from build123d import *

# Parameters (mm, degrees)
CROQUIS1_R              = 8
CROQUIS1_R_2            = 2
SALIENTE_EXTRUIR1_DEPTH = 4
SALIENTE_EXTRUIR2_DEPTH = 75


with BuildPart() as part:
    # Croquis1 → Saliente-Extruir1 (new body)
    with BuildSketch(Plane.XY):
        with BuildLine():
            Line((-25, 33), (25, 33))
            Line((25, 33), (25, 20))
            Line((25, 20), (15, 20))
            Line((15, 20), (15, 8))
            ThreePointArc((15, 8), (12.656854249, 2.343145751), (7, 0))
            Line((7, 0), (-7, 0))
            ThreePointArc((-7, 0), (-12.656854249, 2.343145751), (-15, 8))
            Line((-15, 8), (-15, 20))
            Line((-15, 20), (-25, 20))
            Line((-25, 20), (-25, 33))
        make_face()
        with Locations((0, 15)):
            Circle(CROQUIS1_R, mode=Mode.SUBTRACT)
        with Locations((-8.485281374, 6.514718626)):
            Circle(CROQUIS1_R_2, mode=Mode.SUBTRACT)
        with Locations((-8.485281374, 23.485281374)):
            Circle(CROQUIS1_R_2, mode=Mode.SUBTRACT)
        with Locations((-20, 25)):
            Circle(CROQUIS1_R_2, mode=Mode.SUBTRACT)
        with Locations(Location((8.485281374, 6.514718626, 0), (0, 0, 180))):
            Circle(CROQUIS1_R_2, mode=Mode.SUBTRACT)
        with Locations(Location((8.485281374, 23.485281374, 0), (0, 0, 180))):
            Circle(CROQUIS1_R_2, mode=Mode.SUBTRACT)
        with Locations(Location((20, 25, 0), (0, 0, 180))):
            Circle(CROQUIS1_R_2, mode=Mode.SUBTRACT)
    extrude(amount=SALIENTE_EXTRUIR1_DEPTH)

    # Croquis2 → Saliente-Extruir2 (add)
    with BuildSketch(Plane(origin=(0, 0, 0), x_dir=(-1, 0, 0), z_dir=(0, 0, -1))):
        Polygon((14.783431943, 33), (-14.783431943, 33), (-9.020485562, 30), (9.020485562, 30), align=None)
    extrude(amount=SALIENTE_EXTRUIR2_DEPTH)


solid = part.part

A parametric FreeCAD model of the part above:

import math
import FreeCAD as App
import Part
import Sketcher
from FreeCAD import Vector
Q = App.Units.Quantity

doc = App.newDocument("Part")
body = doc.addObject("PartDesign::Body", "Body")

sketch1 = body.newObject("Sketcher::SketchObject", "Sketch")
sketch1.AttachmentSupport = (doc.getObject("XY_Plane"), [""])
sketch1.MapMode = "FlatFace"
sketch1.addGeometry(Part.LineSegment(Vector(25, 33, 0), Vector(-25, 33, 0)), False)
sketch1.addGeometry(Part.LineSegment(Vector(-25, 33, 0), Vector(-25, 20, 0)), False)
sketch1.addGeometry(Part.LineSegment(Vector(-25, 20, 0), Vector(-15, 20, 0)), False)
sketch1.addGeometry(Part.LineSegment(Vector(-15, 20, 0), Vector(-15, 8, 0)), False)
sketch1.addGeometry(Part.ArcOfCircle(Part.Circle(Vector(-7, 8, 0), Vector(0, 0, 1), 8), math.radians(-180), math.radians(-90)), False)
sketch1.addGeometry(Part.LineSegment(Vector(-7, 0, 0), Vector(7, 0, 0)), False)
sketch1.addGeometry(Part.ArcOfCircle(Part.Circle(Vector(7, 8, 0), Vector(0, 0, 1), 8), math.radians(-90), math.radians(0)), False)
sketch1.addGeometry(Part.LineSegment(Vector(15, 8, 0), Vector(15, 20, 0)), False)
sketch1.addGeometry(Part.LineSegment(Vector(15, 20, 0), Vector(25, 20, 0)), False)
sketch1.addGeometry(Part.LineSegment(Vector(25, 20, 0), Vector(25, 33, 0)), False)
sketch1.addGeometry(Part.Circle(Vector(8.5, 6.5, 0), Vector(0, 0, 1), 2), False)
sketch1.addGeometry(Part.Circle(Vector(-8.5, 6.5, 0), Vector(0, 0, 1), 2), False)
sketch1.addGeometry(Part.Circle(Vector(0, 15, 0), Vector(0, 0, 1), 8), False)
sketch1.addGeometry(Part.Circle(Vector(20, 25, 0), Vector(0, 0, 1), 2), False)
sketch1.addGeometry(Part.Circle(Vector(8.5, 23.5, 0), Vector(0, 0, 1), 2), False)
sketch1.addGeometry(Part.Circle(Vector(-8.5, 23.5, 0), Vector(0, 0, 1), 2), False)
sketch1.addGeometry(Part.Circle(Vector(-20, 25, 0), Vector(0, 0, 1), 2), False)
sketch1.addConstraint(Sketcher.Constraint("Coincident", 0, 2, 1, 1))
sketch1.addConstraint(Sketcher.Constraint("Coincident", 1, 2, 2, 1))
sketch1.addConstraint(Sketcher.Constraint("Coincident", 2, 2, 3, 1))
sketch1.addConstraint(Sketcher.Constraint("Tangent", 3, 2, 4, 1))
sketch1.addConstraint(Sketcher.Constraint("Tangent", 4, 2, 5, 1))
sketch1.addConstraint(Sketcher.Constraint("Tangent", 5, 2, 6, 1))
sketch1.addConstraint(Sketcher.Constraint("Tangent", 6, 2, 7, 1))
sketch1.addConstraint(Sketcher.Constraint("Coincident", 7, 2, 8, 1))
sketch1.addConstraint(Sketcher.Constraint("Coincident", 8, 2, 9, 1))
sketch1.addConstraint(Sketcher.Constraint("Coincident", 9, 2, 0, 1))
sketch1.addConstraint(Sketcher.Constraint("Horizontal", 0))
sketch1.addConstraint(Sketcher.Constraint("Vertical", 1))
sketch1.addConstraint(Sketcher.Constraint("Horizontal", 2))
sketch1.addConstraint(Sketcher.Constraint("Vertical", 3))
sketch1.addConstraint(Sketcher.Constraint("Horizontal", 5))
sketch1.addConstraint(Sketcher.Constraint("Vertical", 7))
sketch1.addConstraint(Sketcher.Constraint("Horizontal", 8))
sketch1.addConstraint(Sketcher.Constraint("Vertical", 9))
sketch1.addConstraint(Sketcher.Constraint("Equal", 4, 6))
sketch1.addConstraint(Sketcher.Constraint("Equal", 10, 11))
sketch1.addConstraint(Sketcher.Constraint("Equal", 6, 12))
sketch1.addConstraint(Sketcher.Constraint("Equal", 11, 13))
sketch1.addConstraint(Sketcher.Constraint("Equal", 13, 14))
sketch1.addConstraint(Sketcher.Constraint("Equal", 14, 15))
sketch1.addConstraint(Sketcher.Constraint("Equal", 15, 16))
sketch1.addConstraint(Sketcher.Constraint("Symmetric", 4, 2, 5, 2, -1, 1))
sketch1.addConstraint(Sketcher.Constraint("Symmetric", 10, 3, 11, 3, -2))
sketch1.addConstraint(Sketcher.Constraint("Symmetric", 14, 3, 15, 3, -2))
sketch1.addConstraint(Sketcher.Constraint("Symmetric", 13, 3, 16, 3, -2))
sketch1.addConstraint(Sketcher.Constraint("Symmetric", 1, 2, 8, 2, -2))
sketch1.addConstraint(Sketcher.Constraint("PointOnObject", 12, 3, -2))
sketch1.addConstraint(Sketcher.Constraint("Vertical", 10, 3, 14, 3))
sketch1.addConstraint(Sketcher.Constraint("Diameter", 10, Q("4 mm")))
sketch1.addConstraint(Sketcher.Constraint("Diameter", 12, Q("16 mm")))
sketch1.addConstraint(Sketcher.Constraint("DistanceX", 0, 2, 0, 1, Q("50 mm")))
sketch1.addConstraint(Sketcher.Constraint("DistanceX", 2, 1, 2, 2, Q("10 mm")))
sketch1.addConstraint(Sketcher.Constraint("DistanceY", 1, 2, 1, 1, Q("13 mm")))
sketch1.addConstraint(Sketcher.Constraint("DistanceY", 3, 2, 3, 1, Q("12 mm")))
sketch1.addConstraint(Sketcher.Constraint("DistanceY", -1, 1, 12, 3, Q("15 mm")))
sketch1.addConstraint(Sketcher.Constraint("DistanceX", -1, 1, 13, 3, Q("20 mm")))
sketch1.addConstraint(Sketcher.Constraint("DistanceY", -1, 1, 13, 3, Q("25 mm")))
sketch1.addConstraint(Sketcher.Constraint("DistanceX", -1, 1, 10, 3, Q("8.485281 mm")))
sketch1.addConstraint(Sketcher.Constraint("DistanceY", -1, 1, 10, 3, Q("6.514719 mm")))
sketch1.addConstraint(Sketcher.Constraint("DistanceY", -1, 1, 14, 3, Q("23.485281 mm")))
pad1 = body.newObject("PartDesign::Pad", "Pad")
pad1.Profile = sketch1
pad1.Length = 4

sketch2 = body.newObject("Sketcher::SketchObject", "Sketch001")
sketch2.AttachmentSupport = (doc.getObject("XY_Plane"), [""])
sketch2.MapMode = "FlatFace"
sketch2.addGeometry(Part.LineSegment(Vector(-15, 33, 0), Vector(15, 33, 0)), False)
sketch2.addGeometry(Part.LineSegment(Vector(15, 33, 0), Vector(9, 30, 0)), False)
sketch2.addGeometry(Part.LineSegment(Vector(9, 30, 0), Vector(-9, 30, 0)), False)
sketch2.addGeometry(Part.LineSegment(Vector(-9, 30, 0), Vector(-15, 33, 0)), False)
sketch2.addConstraint(Sketcher.Constraint("Coincident", 0, 2, 1, 1))
sketch2.addConstraint(Sketcher.Constraint("Coincident", 1, 2, 2, 1))
sketch2.addConstraint(Sketcher.Constraint("Coincident", 2, 2, 3, 1))
sketch2.addConstraint(Sketcher.Constraint("Coincident", 3, 2, 0, 1))
sketch2.addConstraint(Sketcher.Constraint("Horizontal", 0))
sketch2.addConstraint(Sketcher.Constraint("Horizontal", 2))
sketch2.addConstraint(Sketcher.Constraint("Equal", 1, 3))
sketch2.addConstraint(Sketcher.Constraint("DistanceY", -1, 1, 0, 2, Q("33 mm")))
sketch2.addConstraint(Sketcher.Constraint("DistanceY", -1, 1, 1, 2, Q("30 mm")))
sketch2.addConstraint(Sketcher.Constraint("Angle", 1, Q("-152.5 deg")))
sketch2.addConstraint(Sketcher.Constraint("DistanceX", 2, 2, 2, 1, Q("18.040971 mm")))
sketch2.addConstraint(Sketcher.Constraint("DistanceX", -1, 1, 0, 2, Q("14.783432 mm")))
pad2 = body.newObject("PartDesign::Pad", "Pad001")
pad2.Profile = sketch2
pad2.Length = 75
pad2.Reversed = True

doc.recompute()
